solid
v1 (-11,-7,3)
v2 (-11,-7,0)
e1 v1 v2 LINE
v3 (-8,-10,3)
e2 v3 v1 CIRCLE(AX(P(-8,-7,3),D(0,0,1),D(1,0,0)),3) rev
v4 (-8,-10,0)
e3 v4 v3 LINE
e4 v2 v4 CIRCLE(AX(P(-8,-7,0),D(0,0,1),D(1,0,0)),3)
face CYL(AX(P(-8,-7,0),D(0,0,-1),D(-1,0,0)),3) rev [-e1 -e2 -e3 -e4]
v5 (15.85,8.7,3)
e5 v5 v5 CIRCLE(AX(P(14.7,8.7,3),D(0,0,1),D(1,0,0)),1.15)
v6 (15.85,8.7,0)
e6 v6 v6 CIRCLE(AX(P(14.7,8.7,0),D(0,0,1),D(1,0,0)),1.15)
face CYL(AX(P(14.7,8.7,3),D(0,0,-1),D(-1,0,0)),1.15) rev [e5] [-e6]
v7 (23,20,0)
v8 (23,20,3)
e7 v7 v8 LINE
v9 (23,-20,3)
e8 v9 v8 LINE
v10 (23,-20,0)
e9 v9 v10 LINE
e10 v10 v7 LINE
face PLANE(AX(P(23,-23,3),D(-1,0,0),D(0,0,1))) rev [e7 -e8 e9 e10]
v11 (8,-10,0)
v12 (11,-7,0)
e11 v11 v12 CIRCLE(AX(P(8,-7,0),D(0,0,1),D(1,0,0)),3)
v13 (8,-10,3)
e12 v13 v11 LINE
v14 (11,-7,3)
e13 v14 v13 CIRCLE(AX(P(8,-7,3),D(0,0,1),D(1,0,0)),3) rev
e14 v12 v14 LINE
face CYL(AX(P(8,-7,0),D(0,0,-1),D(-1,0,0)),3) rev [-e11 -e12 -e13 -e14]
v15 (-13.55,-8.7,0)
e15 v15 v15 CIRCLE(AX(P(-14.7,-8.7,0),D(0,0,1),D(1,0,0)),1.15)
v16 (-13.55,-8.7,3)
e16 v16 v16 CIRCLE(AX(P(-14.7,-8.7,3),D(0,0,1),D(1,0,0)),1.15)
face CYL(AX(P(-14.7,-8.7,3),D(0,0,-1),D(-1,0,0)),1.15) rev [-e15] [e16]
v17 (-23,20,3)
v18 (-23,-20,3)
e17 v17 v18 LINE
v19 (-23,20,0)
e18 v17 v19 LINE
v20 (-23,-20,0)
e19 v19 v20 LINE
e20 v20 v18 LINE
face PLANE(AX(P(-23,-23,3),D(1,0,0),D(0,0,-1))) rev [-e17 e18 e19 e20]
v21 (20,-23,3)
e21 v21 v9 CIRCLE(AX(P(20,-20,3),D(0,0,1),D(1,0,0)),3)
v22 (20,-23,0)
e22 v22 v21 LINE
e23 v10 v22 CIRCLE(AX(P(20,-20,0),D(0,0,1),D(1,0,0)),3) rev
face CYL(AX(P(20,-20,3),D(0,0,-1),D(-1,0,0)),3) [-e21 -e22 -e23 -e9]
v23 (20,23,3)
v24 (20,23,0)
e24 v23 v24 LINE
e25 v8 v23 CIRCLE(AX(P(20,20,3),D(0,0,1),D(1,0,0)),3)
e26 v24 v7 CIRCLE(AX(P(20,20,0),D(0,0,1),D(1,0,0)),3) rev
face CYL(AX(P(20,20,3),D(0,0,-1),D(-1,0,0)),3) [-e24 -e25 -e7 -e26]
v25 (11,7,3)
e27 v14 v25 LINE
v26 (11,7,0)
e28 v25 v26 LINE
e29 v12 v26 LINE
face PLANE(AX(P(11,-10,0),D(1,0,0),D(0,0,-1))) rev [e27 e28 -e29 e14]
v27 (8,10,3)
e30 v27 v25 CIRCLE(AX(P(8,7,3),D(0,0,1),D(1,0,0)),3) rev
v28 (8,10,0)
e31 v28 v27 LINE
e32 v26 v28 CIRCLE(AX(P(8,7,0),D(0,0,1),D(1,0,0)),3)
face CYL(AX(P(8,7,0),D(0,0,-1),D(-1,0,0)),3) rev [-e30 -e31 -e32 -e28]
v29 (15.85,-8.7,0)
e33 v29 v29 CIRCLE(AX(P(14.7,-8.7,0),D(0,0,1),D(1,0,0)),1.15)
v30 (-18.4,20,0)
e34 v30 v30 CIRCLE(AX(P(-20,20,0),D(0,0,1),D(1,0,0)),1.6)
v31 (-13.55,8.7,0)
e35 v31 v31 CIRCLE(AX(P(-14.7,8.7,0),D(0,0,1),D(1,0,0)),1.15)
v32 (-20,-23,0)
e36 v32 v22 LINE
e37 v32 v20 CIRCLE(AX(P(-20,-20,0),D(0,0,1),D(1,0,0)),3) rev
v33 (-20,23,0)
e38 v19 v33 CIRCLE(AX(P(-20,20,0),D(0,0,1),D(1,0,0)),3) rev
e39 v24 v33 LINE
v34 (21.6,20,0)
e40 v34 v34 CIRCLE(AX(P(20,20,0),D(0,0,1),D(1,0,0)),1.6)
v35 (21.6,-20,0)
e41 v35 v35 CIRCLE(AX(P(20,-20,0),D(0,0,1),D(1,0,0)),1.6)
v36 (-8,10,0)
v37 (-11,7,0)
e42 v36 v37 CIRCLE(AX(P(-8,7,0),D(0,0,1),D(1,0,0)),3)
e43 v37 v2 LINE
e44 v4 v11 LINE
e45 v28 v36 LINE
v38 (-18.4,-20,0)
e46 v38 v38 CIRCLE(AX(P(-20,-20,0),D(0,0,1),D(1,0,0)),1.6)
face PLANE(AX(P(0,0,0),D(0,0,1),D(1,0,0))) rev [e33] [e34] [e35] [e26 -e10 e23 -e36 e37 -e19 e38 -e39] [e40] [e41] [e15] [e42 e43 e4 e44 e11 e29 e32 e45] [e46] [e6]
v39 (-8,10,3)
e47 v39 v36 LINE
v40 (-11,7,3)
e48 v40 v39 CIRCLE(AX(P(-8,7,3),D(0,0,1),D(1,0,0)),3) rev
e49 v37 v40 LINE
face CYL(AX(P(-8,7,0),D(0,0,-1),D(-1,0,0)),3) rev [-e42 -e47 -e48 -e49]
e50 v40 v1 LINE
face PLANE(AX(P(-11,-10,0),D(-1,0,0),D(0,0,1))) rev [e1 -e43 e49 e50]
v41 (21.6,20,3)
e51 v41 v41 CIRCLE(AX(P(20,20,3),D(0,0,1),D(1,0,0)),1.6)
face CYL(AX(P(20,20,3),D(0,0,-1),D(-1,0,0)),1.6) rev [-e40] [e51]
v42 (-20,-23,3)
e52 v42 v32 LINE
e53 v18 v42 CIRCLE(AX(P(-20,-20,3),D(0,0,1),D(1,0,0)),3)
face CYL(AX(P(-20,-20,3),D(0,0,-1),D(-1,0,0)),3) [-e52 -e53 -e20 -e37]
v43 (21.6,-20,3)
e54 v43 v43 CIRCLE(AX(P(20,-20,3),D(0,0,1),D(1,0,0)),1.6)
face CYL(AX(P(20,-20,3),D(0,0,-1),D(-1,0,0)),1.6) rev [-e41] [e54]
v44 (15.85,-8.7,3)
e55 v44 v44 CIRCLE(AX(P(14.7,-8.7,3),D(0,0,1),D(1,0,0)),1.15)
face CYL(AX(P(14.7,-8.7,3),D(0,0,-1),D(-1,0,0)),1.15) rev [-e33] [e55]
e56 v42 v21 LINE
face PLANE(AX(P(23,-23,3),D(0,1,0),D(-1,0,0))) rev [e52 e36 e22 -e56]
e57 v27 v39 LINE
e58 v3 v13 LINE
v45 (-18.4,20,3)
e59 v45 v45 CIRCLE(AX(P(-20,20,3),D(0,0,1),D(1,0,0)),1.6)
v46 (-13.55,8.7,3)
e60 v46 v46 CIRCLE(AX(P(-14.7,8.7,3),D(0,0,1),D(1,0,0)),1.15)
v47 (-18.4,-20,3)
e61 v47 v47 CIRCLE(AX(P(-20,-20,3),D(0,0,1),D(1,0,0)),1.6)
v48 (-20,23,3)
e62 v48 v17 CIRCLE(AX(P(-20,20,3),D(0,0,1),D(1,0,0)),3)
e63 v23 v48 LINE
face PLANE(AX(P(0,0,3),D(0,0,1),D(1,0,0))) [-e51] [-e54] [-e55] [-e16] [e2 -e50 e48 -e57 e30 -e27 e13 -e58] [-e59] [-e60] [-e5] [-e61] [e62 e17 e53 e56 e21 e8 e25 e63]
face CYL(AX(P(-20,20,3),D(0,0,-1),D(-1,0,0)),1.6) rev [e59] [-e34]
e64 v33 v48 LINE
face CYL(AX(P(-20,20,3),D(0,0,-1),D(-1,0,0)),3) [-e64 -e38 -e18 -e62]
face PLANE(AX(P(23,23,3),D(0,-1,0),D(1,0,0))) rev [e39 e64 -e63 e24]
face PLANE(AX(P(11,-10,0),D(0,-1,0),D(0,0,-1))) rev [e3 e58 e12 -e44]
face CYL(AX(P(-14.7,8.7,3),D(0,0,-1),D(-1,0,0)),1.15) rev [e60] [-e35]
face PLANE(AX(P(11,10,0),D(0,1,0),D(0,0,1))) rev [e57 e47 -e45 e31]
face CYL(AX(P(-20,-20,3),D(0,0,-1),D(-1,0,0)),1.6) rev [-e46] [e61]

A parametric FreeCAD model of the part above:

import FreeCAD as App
import Part
import Sketcher


def edges_at(feature, points):
    """Names of the edges that pass closest to the given points."""
    edges = feature.Shape.Edges
    near = lambda p: min(range(len(edges)), key=lambda i: edges[i].distToShape(Part.Vertex(*p))[0])
    return sorted({f"Edge{near(p) + 1}" for p in points})


def add_polygon(sketch, points):
    """Adds a closed chain of lines whose ends are joined by coincident constraints."""
    first, n = sketch.GeometryCount, len(points)
    for a, b in zip(points, points[1:] + points[:1]):
        sketch.addGeometry(Part.LineSegment(App.Vector(*a, 0), App.Vector(*b, 0)), False)
    for i in range(n):
        sketch.addConstraint(Sketcher.Constraint("Coincident", first + i, 2, first + (i + 1) % n, 1))

doc = App.newDocument("Part")
body = doc.addObject("PartDesign::Body", "Body")

sketch1 = body.newObject("Sketcher::SketchObject", "Sketch")
sketch1.AttachmentSupport = (doc.getObject("XY_Plane"), [""])
sketch1.MapMode = "FlatFace"
add_polygon(sketch1, [(-23, 23), (-23, -23), (23, -23), (23, 23)])
sketch1.addGeometry(Part.Circle(App.Vector(-20, -20, 0), App.Vector(0, 0, 1), 1.6), False)
sketch1.addGeometry(Part.Circle(App.Vector(-14.7, -8.7, 0), App.Vector(0, 0, 1), 1.1), False)
sketch1.addGeometry(Part.Circle(App.Vector(20, -20, 0), App.Vector(0, 0, 1), 1.6), False)
sketch1.addGeometry(Part.Circle(App.Vector(14.7, -8.7, 0), App.Vector(0, 0, 1), 1.1), False)
sketch1.addGeometry(Part.Circle(App.Vector(-14.7, 8.7, 0), App.Vector(0, 0, 1), 1.1), False)
sketch1.addGeometry(Part.Circle(App.Vector(-20, 20, 0), App.Vector(0, 0, 1), 1.6), False)
sketch1.addGeometry(Part.Circle(App.Vector(14.7, 8.7, 0), App.Vector(0, 0, 1), 1.1), False)
sketch1.addGeometry(Part.Circle(App.Vector(20, 20, 0), App.Vector(0, 0, 1), 1.6), False)
sketch1.addConstraint([
    Sketcher.Constraint("Vertical", 0),
    Sketcher.Constraint("Horizontal", 1),
    Sketcher.Constraint("Vertical", 2),
    Sketcher.Constraint("Horizontal", 3),
    Sketcher.Constraint("Equal", 4, 6),
    Sketcher.Constraint("Equal", 5, 7),
    Sketcher.Constraint("Equal", 7, 8),
    Sketcher.Constraint("Equal", 6, 9),
    Sketcher.Constraint("Equal", 8, 10),
    Sketcher.Constraint("Equal", 9, 11),
    Sketcher.Constraint("Symmetric", 7, 3, 8, 3, -1, 1),
    Sketcher.Constraint("Symmetric", 6, 3, 9, 3, -1, 1),
    Sketcher.Constraint("Symmetric", 5, 3, 10, 3, -1, 1),
    Sketcher.Constraint("Symmetric", 4, 3, 11, 3, -1, 1),
    Sketcher.Constraint("Symmetric", 0, 2, 2, 2, -1, 1),
    Sketcher.Constraint("Symmetric", 4, 3, 6, 3, -2),
    Sketcher.Constraint("Symmetric", 5, 3, 7, 3, -2),
    Sketcher.Constraint("Equal", 3, 0),
    Sketcher.Constraint("Diameter", 4, 3.2),
    Sketcher.Constraint("Diameter", 5, 2.3),
    Sketcher.Constraint("DistanceX", 1, 1, 1, 2, 46.0),
    Sketcher.Constraint("DistanceX", 4, 3, -1, 1, 20.0),
    Sketcher.Constraint("DistanceY", 4, 3, -1, 1, 20.0),
    Sketcher.Constraint("DistanceX", 5, 3, -1, 1, 14.7),
    Sketcher.Constraint("DistanceY", 5, 3, -1, 1, 8.7),
])
pad1 = body.newObject("PartDesign::Pad", "Pad")
pad1.Profile = sketch1
pad1.Length = 3
doc.recompute()

fillet = body.newObject("PartDesign::Fillet", "Fillet")
fillet.Base = (pad1, edges_at(pad1, [
    (-23, 23, 1.5),
    (23, 23, 1.5),
    (23, -23, 1.5),
    (-23, -23, 1.5),
]))
fillet.Radius = 3

sketch2 = body.newObject("Sketcher::SketchObject", "Sketch001")
sketch2.AttachmentSupport = (doc.getObject("XY_Plane"), [""])
sketch2.MapMode = "FlatFace"
sketch2.AttachmentOffset = App.Placement(App.Vector(0, 0, 3), App.Rotation())
add_polygon(sketch2, [(-11, 10), (-11, -10), (11, -10), (11, 10)])
sketch2.addConstraint([
    Sketcher.Constraint("Vertical", 0),
    Sketcher.Constraint("Horizontal", 1),
    Sketcher.Constraint("Vertical", 2),
    Sketcher.Constraint("Horizontal", 3),
    Sketcher.Constraint("Symmetric", 0, 2, 2, 2, -1, 1),
    Sketcher.Constraint("DistanceX", 1, 1, 1, 2, 22.0),
    Sketcher.Constraint("DistanceY", 0, 2, 0, 1, 20.0),
])
pocket1 = body.newObject("PartDesign::Pocket", "Pocket")
pocket1.Profile = sketch2
pocket1.Length = 3
doc.recompute()

fillet2 = body.newObject("PartDesign::Fillet", "Fillet001")
fillet2.Base = (pocket1, edges_at(pocket1, [
    (-11, -10, 1.5),
    (-11, 10, 1.5),
    (11, 10, 1.5),
    (11, -10, 1.5),
]))
fillet2.Radius = 3

doc.recompute()
